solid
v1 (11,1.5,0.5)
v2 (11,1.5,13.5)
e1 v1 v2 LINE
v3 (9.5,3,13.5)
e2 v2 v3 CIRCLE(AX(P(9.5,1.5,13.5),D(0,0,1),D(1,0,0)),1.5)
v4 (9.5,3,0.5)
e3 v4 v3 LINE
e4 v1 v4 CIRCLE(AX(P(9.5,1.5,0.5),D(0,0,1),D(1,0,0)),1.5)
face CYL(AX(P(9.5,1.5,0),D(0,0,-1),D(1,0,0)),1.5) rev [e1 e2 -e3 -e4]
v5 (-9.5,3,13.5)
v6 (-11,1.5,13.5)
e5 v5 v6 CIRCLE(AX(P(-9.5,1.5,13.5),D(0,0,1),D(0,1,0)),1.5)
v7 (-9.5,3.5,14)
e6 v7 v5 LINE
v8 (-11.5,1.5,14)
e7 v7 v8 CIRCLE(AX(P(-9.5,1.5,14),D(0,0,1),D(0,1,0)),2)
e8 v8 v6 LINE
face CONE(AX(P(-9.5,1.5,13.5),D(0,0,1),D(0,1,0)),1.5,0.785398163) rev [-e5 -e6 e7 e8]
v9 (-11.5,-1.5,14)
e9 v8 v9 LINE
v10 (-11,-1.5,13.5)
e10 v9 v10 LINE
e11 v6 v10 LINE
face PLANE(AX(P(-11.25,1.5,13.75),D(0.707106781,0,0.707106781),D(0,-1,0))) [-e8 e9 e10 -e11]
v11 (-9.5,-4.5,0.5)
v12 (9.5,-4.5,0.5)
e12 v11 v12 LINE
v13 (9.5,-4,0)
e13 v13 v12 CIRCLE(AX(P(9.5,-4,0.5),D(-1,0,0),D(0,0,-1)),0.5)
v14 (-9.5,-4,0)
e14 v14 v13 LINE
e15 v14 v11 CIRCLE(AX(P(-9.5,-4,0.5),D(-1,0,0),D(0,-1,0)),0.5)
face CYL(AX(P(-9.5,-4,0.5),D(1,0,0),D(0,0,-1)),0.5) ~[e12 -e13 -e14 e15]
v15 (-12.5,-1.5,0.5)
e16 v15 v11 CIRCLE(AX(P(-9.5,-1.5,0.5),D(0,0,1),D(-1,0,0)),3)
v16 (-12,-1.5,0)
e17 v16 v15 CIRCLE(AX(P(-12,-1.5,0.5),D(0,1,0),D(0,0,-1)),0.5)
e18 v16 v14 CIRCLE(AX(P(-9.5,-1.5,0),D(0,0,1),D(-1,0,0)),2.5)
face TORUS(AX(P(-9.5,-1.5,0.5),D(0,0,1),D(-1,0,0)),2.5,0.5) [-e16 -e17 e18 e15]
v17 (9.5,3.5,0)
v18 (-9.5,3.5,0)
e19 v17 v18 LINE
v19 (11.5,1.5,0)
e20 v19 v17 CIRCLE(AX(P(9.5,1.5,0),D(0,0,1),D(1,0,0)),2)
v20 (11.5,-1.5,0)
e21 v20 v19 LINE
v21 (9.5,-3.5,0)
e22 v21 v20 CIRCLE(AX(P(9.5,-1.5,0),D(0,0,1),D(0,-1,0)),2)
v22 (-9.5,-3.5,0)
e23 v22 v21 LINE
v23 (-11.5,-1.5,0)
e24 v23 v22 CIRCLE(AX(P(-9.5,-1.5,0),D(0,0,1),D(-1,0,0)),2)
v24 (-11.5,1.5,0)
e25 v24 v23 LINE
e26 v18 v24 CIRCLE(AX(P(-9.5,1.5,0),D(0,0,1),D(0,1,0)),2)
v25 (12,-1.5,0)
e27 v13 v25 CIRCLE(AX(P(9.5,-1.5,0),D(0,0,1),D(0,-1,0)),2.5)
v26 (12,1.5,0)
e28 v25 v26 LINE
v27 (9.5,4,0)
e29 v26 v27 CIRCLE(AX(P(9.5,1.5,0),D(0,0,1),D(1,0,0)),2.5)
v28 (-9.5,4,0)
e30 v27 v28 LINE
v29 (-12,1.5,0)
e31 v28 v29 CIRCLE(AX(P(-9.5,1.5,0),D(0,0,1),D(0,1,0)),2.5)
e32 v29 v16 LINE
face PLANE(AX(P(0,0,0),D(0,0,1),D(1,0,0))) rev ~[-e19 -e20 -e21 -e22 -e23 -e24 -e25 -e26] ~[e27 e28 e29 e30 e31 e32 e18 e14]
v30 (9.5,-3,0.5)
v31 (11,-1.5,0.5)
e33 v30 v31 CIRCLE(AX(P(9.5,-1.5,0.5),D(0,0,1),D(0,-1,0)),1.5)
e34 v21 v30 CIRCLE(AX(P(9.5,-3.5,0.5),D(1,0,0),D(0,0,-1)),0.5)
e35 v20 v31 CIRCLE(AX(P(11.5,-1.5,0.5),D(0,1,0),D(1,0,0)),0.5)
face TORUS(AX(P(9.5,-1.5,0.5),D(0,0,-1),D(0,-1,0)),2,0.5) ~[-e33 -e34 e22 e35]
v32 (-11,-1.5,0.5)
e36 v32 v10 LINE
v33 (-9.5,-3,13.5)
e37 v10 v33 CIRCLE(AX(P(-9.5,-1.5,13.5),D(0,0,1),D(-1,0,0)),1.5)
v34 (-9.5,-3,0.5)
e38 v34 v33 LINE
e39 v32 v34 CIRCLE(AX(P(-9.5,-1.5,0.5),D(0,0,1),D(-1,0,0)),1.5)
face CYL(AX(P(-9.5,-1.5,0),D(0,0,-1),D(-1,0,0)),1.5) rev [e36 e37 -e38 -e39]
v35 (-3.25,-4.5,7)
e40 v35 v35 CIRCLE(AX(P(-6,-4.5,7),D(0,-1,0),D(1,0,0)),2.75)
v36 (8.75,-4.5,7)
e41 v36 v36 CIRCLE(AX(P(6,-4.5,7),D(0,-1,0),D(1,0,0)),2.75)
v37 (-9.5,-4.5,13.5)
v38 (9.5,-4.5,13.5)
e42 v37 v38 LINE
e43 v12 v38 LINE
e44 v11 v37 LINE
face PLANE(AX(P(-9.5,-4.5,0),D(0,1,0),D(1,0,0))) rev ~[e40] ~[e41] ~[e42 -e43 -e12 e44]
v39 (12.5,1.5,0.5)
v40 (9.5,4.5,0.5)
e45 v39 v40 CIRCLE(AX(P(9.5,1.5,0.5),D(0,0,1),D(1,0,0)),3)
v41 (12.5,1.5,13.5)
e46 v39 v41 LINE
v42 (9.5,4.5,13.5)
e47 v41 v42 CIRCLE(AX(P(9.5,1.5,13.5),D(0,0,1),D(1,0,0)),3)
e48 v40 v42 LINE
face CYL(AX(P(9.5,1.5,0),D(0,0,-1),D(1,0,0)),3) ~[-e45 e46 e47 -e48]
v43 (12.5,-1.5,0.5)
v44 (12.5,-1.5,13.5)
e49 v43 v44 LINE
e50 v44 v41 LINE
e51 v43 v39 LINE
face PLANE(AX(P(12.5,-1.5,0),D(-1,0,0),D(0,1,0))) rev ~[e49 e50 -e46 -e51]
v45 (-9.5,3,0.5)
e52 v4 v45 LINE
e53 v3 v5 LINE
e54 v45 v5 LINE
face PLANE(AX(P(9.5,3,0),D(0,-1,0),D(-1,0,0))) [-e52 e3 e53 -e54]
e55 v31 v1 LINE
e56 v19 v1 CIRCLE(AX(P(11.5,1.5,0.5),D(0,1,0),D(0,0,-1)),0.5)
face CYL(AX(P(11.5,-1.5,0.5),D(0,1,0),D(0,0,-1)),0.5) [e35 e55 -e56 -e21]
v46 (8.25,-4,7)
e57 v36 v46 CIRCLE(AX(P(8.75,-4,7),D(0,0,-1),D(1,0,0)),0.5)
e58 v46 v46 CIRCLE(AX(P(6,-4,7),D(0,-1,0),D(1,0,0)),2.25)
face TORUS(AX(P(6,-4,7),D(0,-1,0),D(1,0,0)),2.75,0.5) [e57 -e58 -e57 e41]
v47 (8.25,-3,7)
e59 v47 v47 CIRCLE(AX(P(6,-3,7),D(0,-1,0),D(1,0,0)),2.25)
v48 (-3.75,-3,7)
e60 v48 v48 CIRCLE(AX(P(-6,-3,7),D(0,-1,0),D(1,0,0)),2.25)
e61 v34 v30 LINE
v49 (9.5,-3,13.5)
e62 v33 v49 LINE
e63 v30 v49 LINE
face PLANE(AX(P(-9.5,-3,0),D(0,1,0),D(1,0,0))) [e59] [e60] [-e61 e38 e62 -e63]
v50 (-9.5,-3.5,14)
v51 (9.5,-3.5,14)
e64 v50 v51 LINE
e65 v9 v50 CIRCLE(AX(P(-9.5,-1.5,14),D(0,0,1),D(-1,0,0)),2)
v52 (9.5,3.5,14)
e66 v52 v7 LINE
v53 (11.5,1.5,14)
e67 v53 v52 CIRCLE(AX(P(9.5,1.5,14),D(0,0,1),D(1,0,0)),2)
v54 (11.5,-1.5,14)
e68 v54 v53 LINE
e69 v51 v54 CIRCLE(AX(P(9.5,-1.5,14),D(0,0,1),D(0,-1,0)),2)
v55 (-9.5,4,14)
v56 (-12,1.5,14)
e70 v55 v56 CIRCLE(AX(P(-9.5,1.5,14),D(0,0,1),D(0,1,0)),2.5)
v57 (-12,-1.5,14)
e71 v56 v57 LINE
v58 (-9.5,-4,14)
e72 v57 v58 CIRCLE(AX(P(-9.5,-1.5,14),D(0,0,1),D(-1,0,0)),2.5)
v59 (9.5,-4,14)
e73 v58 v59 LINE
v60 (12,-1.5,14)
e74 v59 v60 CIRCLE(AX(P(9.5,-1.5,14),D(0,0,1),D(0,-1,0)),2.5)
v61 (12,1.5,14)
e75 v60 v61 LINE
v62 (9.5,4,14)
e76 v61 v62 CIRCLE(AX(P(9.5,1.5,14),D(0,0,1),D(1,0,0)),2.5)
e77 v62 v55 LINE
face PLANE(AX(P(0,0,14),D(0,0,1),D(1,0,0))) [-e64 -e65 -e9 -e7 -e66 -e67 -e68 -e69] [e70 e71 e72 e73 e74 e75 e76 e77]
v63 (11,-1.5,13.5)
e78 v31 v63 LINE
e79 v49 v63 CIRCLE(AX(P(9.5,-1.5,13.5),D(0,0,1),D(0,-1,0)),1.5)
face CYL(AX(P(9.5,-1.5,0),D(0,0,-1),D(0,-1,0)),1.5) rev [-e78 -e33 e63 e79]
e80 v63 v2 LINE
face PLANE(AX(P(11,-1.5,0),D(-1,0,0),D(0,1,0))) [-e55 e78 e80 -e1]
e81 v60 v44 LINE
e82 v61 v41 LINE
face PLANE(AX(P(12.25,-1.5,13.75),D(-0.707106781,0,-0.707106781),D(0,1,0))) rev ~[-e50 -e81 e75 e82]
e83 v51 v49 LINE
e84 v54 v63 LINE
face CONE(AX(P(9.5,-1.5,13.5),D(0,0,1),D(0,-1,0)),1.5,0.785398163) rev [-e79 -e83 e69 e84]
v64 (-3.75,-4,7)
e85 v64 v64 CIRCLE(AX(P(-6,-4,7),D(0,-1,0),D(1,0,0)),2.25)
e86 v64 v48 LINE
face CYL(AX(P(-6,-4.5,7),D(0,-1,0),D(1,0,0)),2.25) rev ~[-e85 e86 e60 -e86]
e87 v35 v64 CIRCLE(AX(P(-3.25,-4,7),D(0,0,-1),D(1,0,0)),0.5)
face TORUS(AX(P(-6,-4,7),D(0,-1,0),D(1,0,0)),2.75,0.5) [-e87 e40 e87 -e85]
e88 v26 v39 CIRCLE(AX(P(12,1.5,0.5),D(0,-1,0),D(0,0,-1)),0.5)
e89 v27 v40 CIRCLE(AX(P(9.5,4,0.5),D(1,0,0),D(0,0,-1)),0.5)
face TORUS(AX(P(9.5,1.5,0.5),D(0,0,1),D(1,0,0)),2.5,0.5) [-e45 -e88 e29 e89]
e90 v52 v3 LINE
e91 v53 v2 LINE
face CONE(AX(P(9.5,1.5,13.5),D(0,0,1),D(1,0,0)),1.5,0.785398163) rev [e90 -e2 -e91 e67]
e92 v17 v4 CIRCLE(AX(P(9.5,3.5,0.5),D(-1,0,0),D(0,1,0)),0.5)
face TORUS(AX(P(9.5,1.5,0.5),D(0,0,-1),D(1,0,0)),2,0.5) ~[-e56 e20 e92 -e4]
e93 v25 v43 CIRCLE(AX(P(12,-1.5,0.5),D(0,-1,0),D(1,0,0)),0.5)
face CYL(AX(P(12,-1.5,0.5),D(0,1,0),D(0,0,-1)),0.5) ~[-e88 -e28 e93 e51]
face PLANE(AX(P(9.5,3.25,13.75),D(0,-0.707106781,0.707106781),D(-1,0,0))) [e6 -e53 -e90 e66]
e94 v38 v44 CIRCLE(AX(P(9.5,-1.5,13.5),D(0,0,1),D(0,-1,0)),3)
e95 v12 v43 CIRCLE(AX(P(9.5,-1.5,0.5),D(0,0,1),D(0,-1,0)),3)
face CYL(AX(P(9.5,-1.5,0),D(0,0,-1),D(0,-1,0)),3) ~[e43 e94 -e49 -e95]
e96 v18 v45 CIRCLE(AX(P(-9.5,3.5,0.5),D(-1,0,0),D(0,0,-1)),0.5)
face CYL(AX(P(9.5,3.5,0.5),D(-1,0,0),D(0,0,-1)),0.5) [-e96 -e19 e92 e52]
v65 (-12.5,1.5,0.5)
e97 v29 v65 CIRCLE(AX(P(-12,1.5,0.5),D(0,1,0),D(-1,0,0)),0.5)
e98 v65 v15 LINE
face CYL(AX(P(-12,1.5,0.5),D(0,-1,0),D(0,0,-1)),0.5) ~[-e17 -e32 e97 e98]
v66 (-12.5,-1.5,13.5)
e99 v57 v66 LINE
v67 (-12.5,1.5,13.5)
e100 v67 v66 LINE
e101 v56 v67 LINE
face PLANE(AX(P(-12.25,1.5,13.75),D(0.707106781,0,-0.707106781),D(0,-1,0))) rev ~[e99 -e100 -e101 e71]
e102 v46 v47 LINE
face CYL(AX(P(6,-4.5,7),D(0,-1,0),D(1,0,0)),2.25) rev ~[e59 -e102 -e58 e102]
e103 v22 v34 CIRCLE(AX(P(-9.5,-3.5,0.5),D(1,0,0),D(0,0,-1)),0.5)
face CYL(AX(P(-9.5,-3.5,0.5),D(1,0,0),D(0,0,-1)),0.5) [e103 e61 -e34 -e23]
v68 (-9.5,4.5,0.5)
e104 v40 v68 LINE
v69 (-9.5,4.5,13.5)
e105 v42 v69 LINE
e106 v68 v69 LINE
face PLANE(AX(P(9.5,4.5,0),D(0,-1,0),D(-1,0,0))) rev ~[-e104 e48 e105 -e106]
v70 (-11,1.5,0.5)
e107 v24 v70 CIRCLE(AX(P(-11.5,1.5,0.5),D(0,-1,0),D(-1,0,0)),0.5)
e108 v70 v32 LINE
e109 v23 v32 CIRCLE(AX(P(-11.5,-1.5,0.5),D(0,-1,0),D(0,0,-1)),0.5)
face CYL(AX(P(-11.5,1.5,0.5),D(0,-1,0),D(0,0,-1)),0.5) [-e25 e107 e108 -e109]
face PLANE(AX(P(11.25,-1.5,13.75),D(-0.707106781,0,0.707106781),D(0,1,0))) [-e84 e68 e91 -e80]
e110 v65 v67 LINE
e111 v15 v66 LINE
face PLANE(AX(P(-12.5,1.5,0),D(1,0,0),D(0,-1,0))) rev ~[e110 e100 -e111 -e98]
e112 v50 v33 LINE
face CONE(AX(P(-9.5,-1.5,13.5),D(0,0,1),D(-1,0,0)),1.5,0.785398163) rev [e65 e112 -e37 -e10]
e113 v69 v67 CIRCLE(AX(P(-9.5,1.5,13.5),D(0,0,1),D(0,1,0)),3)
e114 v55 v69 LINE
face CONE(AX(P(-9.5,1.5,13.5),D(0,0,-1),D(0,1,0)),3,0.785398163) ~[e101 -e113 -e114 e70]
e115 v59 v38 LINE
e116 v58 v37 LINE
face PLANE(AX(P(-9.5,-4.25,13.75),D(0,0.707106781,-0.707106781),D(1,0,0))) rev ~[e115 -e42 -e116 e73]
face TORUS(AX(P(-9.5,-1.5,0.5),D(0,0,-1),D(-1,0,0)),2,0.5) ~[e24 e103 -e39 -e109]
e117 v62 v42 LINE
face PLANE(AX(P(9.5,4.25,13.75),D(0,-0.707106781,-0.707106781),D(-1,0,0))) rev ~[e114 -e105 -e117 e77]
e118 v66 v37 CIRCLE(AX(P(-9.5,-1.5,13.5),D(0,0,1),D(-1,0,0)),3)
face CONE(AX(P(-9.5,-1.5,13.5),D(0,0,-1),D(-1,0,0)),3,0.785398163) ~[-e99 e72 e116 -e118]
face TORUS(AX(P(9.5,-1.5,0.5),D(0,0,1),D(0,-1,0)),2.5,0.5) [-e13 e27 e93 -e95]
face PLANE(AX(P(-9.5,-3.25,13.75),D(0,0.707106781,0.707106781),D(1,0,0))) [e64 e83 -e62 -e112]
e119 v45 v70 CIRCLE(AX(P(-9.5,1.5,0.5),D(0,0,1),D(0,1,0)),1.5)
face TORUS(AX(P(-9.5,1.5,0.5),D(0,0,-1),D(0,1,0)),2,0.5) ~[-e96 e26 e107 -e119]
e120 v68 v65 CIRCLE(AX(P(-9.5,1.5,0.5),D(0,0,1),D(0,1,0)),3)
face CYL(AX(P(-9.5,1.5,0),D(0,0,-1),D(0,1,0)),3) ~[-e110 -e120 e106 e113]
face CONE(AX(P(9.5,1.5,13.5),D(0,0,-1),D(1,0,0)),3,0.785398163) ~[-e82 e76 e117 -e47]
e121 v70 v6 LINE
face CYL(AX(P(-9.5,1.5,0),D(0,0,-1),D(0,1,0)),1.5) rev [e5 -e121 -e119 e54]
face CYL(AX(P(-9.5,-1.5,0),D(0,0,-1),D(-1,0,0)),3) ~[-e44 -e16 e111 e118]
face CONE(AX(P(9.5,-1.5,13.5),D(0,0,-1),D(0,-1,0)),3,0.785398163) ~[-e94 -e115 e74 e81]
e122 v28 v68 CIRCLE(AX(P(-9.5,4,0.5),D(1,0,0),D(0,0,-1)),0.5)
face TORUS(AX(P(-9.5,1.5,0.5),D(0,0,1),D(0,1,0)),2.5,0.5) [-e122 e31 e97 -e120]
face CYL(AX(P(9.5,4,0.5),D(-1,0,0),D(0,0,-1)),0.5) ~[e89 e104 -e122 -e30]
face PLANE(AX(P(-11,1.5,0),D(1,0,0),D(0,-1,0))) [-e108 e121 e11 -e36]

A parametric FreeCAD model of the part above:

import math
import FreeCAD as App
import Part
import Sketcher

V = App.Vector


def edges_at(feature, points):
    """Names of the edges that pass closest to the given points."""
    edges = feature.Shape.Edges
    near = lambda p: min(range(len(edges)), key=lambda i: edges[i].distToShape(Part.Vertex(*p))[0])
    return sorted({f"Edge{near(p) + 1}" for p in points})


def faces_at(feature, points):
    """Names of the faces that lie closest to the given points."""
    faces = feature.Shape.Faces
    near = lambda p: min(range(len(faces)), key=lambda i: faces[i].distToShape(Part.Vertex(*p))[0])
    return sorted({f"Face{near(p) + 1}" for p in points})

doc = App.newDocument("Part")
body = doc.addObject("PartDesign::Body", "Body")

# Sketch on XY plane
sketch1 = doc.addObject("Sketcher::SketchObject", "Sketch")
body.addObject(sketch1)
sketch1.AttachmentSupport = (doc.XY_Plane, [""])
sketch1.MapMode = "FlatFace"
sketch1.addGeometry([
    Part.ArcOfCircle(Part.Circle(V(-9.5, -1.5, 0), V(0, 0, 1), 3), math.radians(180), math.radians(270)),  # 0
    Part.LineSegment(V(-9.5, -4.5, 0), V(9.5, -4.5, 0)),  # 1
    Part.ArcOfCircle(Part.Circle(V(9.5, -1.5, 0), V(0, 0, 1), 3), math.radians(-90), math.radians(0)),  # 2
    Part.LineSegment(V(12.5, -1.5, 0), V(12.5, 1.5, 0)),  # 3
    Part.ArcOfCircle(Part.Circle(V(9.5, 1.5, 0), V(0, 0, 1), 3), math.radians(0), math.radians(90)),  # 4
    Part.LineSegment(V(9.5, 4.5, 0), V(-9.5, 4.5, 0)),  # 5
    Part.ArcOfCircle(Part.Circle(V(-9.5, 1.5, 0), V(0, 0, 1), 3), math.radians(90), math.radians(180)),  # 6
    Part.LineSegment(V(-12.5, 1.5, 0), V(-12.5, -1.5, 0)),  # 7
], False)
sketch1.addConstraint([
    Sketcher.Constraint("Tangent", 0, 2, 1, 1),
    Sketcher.Constraint("Tangent", 1, 2, 2, 1),
    Sketcher.Constraint("Tangent", 2, 2, 3, 1),
    Sketcher.Constraint("Tangent", 3, 2, 4, 1),
    Sketcher.Constraint("Tangent", 4, 2, 5, 1),
    Sketcher.Constraint("Tangent", 5, 2, 6, 1),
    Sketcher.Constraint("Tangent", 6, 2, 7, 1),
    Sketcher.Constraint("Tangent", 7, 2, 0, 1),
    Sketcher.Constraint("Horizontal", 1),
    Sketcher.Constraint("Vertical", 3),
    Sketcher.Constraint("Horizontal", 5),
    Sketcher.Constraint("Vertical", 7),
    Sketcher.Constraint("Equal", 0, 2),
    Sketcher.Constraint("Equal", 2, 4),
    Sketcher.Constraint("Equal", 4, 6),
    Sketcher.Constraint("Symmetric", 0, 3, 4, 3, -1, 1),
    Sketcher.Constraint("Radius", 0, 3.0),
    Sketcher.Constraint("DistanceX", 1, 1, 1, 2, 19.0),
    Sketcher.Constraint("DistanceY", 3, 1, 3, 2, 3.0),
])
pad1 = doc.addObject("PartDesign::Pad", "Pad")
body.addObject(pad1)
pad1.Profile = sketch1
pad1.Length = 14
doc.recompute()

thickness = doc.addObject("PartDesign::Thickness", "Thickness")
body.addObject(thickness)
thickness.Base = (pad1, faces_at(pad1, [(0, 0, 14), (0, 0, 0)]))
thickness.Value = 1.5
thickness.Reversed = True
thickness.Join = "Arc"

# Sketch on XZ plane
sketch2 = doc.addObject("Sketcher::SketchObject", "Sketch001")
body.addObject(sketch2)
sketch2.AttachmentSupport = (doc.XZ_Plane, [""])
sketch2.MapMode = "FlatFace"
sketch2.AttachmentOffset = App.Placement(V(0, 0, 4.5), App.Rotation())
sketch2.addGeometry([
    Part.Circle(V(-6, 7, 0), V(0, 0, 1), 2.2),
    Part.Circle(V(6, 7, 0), V(0, 0, 1), 2.2),
], False)
sketch2.addConstraint([
    Sketcher.Constraint("Equal", 0, 1),
    Sketcher.Constraint("Symmetric", 0, 3, 1, 3, -2),
    Sketcher.Constraint("Diameter", 0, 4.5),
    Sketcher.Constraint("DistanceX", 0, 3, -1, 1, 6.0),
    Sketcher.Constraint("DistanceY", -1, 1, 0, 3, 7.0),
])
pocket1 = doc.addObject("PartDesign::Pocket", "Pocket")
body.addObject(pocket1)
pocket1.Profile = sketch2
pocket1.Length = 5
doc.recompute()

fillet = doc.addObject("PartDesign::Fillet", "Fillet")
body.addObject(fillet)
fillet.Base = (pocket1, edges_at(pocket1, [
    (0, 4.5, 0),
    (0, -3, 0),
    (3.75, -4.5, 7),
    (-8.25, -4.5, 7),
]))
fillet.Radius = 0.5
doc.recompute()

chamfer = doc.addObject("PartDesign::Chamfer", "Chamfer")
body.addObject(chamfer)
chamfer.Base = (fillet, edges_at(fillet, [(0, -4.5, 14), (0, -3, 14)]))
chamfer.Size = 0.5

doc.recompute()
